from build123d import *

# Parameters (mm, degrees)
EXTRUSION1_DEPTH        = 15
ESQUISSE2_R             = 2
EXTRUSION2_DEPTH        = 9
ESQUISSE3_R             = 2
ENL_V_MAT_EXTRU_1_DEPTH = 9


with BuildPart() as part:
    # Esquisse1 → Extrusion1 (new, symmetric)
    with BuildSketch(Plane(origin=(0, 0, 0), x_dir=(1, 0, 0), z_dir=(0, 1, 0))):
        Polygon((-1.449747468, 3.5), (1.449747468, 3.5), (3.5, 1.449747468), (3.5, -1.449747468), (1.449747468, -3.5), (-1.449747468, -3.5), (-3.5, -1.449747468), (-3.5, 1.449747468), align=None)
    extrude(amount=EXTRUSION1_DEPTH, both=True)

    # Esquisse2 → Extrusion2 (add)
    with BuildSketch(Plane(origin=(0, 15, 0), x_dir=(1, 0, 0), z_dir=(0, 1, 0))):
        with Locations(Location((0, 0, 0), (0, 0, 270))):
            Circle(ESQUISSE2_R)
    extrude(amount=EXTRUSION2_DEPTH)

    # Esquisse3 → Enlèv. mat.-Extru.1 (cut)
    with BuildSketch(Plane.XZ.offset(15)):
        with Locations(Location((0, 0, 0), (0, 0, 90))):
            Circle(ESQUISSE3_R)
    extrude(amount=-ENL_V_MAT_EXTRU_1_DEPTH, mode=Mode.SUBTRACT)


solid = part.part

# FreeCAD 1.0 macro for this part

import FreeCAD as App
import Part
import Sketcher
Q = App.Units.Quantity


def add_polygon(sketch, points):
    """Adds a closed chain of lines whose ends are joined by coincident constraints."""
    first, n = sketch.GeometryCount, len(points)
    for a, b in zip(points, points[1:] + points[:1]):
        sketch.addGeometry(Part.LineSegment(App.Vector(*a, 0), App.Vector(*b, 0)), False)
    for i in range(n):
        sketch.addConstraint(Sketcher.Constraint("Coincident", first + i, 2, first + (i + 1) % n, 1))

doc = App.newDocument("Part")
params = doc.addObject("Spreadsheet::Sheet", "Params")
for row, (alias, value) in enumerate([
    ("pad1_length", "30 mm"),
    ("sketch2_diameter", "4 mm"),
    ("pad2_length", "9 mm"),
    ("sketch3_diameter", "4 mm"),
    ("pocket1_length", "9 mm"),
], start=1):
    params.set(f"A{row}", alias)
    params.set(f"B{row}", "=" + value)
    params.setAlias(f"B{row}", alias)

body = doc.addObject("PartDesign::Body", "Body")

# Sketch on XZ plane
sketch1 = body.newObject("Sketcher::SketchObject", "Sketch")
sketch1.AttachmentSupport = (doc.getObject("XZ_Plane"), [""])
sketch1.MapMode = "FlatFace"
add_polygon(sketch1, [(1.4, -3.5), (-1.4, -3.5), (-3.5, -1.4), (-3.5, 1.4), (-1.4, 3.5), (1.4, 3.5), (3.5, 1.4), (3.5, -1.4)])  # lines 0-7
sketch1.addConstraint([
    Sketcher.Constraint("Horizontal", 0),
    Sketcher.Constraint("Vertical", 2),
    Sketcher.Constraint("Horizontal", 4),
    Sketcher.Constraint("Vertical", 6),
    Sketcher.Constraint("Symmetric", 0, 2, 4, 2, -1, 1),
    Sketcher.Constraint("Symmetric", 1, 2, 5, 2, -1, 1),
    Sketcher.Constraint("Perpendicular", 1, 3),
    Sketcher.Constraint("Perpendicular", 5, 7),
    Sketcher.Constraint("Horizontal", 2, 2, 5, 2),
    Sketcher.Constraint("Horizontal", 1, 2, 6, 2),
    Sketcher.Constraint("Vertical", 0, 2, 3, 2),
    Sketcher.Constraint("Equal", 4, 2),
    Sketcher.Constraint("DistanceY", 0, 2, 3, 2, Q("7 mm")),
    Sketcher.Constraint("DistanceX", 0, 2, 0, 1, Q("2.899495 mm")),
])
pad1 = body.newObject("PartDesign::Pad", "Pad")
pad1.Profile = sketch1
pad1.setExpression("Length", "Params.pad1_length")
pad1.Midplane = True

# Sketch on XZ plane
sketch2 = body.newObject("Sketcher::SketchObject", "Sketch001")
sketch2.AttachmentSupport = (doc.getObject("XZ_Plane"), [""])
sketch2.MapMode = "FlatFace"
sketch2.AttachmentOffset = App.Placement(App.Vector(0, 0, -15), App.Rotation())
sketch2.addGeometry(Part.Circle(App.Vector(0, 0, 0), App.Vector(0, 0, 1), 2), False)
sketch2.addConstraint([
    Sketcher.Constraint("Coincident", 0, 3, -1, 1),
    Sketcher.Constraint("Diameter", 0, Q("4 mm")),
])
sketch2.setExpression("Constraints[1]", "Params.sketch2_diameter")
pad2 = body.newObject("PartDesign::Pad", "Pad001")
pad2.Profile = sketch2
pad2.setExpression("Length", "Params.pad2_length")
pad2.Reversed = True

# Sketch on XZ plane
sketch3 = body.newObject("Sketcher::SketchObject", "Sketch002")
sketch3.AttachmentSupport = (doc.getObject("XZ_Plane"), [""])
sketch3.MapMode = "FlatFace"
sketch3.AttachmentOffset = App.Placement(App.Vector(0, 0, 15), App.Rotation())
sketch3.addGeometry(Part.Circle(App.Vector(0, 0, 0), App.Vector(0, 0, 1), 2), False)
sketch3.addConstraint([
    Sketcher.Constraint("Coincident", 0, 3, -1, 1),
    Sketcher.Constraint("Diameter", 0, Q("4 mm")),
])
sketch3.setExpression("Constraints[1]", "Params.sketch3_diameter")
pocket1 = body.newObject("PartDesign::Pocket", "Pocket")
pocket1.Profile = sketch3
pocket1.setExpression("Length", "Params.pocket1_length")

doc.recompute()
